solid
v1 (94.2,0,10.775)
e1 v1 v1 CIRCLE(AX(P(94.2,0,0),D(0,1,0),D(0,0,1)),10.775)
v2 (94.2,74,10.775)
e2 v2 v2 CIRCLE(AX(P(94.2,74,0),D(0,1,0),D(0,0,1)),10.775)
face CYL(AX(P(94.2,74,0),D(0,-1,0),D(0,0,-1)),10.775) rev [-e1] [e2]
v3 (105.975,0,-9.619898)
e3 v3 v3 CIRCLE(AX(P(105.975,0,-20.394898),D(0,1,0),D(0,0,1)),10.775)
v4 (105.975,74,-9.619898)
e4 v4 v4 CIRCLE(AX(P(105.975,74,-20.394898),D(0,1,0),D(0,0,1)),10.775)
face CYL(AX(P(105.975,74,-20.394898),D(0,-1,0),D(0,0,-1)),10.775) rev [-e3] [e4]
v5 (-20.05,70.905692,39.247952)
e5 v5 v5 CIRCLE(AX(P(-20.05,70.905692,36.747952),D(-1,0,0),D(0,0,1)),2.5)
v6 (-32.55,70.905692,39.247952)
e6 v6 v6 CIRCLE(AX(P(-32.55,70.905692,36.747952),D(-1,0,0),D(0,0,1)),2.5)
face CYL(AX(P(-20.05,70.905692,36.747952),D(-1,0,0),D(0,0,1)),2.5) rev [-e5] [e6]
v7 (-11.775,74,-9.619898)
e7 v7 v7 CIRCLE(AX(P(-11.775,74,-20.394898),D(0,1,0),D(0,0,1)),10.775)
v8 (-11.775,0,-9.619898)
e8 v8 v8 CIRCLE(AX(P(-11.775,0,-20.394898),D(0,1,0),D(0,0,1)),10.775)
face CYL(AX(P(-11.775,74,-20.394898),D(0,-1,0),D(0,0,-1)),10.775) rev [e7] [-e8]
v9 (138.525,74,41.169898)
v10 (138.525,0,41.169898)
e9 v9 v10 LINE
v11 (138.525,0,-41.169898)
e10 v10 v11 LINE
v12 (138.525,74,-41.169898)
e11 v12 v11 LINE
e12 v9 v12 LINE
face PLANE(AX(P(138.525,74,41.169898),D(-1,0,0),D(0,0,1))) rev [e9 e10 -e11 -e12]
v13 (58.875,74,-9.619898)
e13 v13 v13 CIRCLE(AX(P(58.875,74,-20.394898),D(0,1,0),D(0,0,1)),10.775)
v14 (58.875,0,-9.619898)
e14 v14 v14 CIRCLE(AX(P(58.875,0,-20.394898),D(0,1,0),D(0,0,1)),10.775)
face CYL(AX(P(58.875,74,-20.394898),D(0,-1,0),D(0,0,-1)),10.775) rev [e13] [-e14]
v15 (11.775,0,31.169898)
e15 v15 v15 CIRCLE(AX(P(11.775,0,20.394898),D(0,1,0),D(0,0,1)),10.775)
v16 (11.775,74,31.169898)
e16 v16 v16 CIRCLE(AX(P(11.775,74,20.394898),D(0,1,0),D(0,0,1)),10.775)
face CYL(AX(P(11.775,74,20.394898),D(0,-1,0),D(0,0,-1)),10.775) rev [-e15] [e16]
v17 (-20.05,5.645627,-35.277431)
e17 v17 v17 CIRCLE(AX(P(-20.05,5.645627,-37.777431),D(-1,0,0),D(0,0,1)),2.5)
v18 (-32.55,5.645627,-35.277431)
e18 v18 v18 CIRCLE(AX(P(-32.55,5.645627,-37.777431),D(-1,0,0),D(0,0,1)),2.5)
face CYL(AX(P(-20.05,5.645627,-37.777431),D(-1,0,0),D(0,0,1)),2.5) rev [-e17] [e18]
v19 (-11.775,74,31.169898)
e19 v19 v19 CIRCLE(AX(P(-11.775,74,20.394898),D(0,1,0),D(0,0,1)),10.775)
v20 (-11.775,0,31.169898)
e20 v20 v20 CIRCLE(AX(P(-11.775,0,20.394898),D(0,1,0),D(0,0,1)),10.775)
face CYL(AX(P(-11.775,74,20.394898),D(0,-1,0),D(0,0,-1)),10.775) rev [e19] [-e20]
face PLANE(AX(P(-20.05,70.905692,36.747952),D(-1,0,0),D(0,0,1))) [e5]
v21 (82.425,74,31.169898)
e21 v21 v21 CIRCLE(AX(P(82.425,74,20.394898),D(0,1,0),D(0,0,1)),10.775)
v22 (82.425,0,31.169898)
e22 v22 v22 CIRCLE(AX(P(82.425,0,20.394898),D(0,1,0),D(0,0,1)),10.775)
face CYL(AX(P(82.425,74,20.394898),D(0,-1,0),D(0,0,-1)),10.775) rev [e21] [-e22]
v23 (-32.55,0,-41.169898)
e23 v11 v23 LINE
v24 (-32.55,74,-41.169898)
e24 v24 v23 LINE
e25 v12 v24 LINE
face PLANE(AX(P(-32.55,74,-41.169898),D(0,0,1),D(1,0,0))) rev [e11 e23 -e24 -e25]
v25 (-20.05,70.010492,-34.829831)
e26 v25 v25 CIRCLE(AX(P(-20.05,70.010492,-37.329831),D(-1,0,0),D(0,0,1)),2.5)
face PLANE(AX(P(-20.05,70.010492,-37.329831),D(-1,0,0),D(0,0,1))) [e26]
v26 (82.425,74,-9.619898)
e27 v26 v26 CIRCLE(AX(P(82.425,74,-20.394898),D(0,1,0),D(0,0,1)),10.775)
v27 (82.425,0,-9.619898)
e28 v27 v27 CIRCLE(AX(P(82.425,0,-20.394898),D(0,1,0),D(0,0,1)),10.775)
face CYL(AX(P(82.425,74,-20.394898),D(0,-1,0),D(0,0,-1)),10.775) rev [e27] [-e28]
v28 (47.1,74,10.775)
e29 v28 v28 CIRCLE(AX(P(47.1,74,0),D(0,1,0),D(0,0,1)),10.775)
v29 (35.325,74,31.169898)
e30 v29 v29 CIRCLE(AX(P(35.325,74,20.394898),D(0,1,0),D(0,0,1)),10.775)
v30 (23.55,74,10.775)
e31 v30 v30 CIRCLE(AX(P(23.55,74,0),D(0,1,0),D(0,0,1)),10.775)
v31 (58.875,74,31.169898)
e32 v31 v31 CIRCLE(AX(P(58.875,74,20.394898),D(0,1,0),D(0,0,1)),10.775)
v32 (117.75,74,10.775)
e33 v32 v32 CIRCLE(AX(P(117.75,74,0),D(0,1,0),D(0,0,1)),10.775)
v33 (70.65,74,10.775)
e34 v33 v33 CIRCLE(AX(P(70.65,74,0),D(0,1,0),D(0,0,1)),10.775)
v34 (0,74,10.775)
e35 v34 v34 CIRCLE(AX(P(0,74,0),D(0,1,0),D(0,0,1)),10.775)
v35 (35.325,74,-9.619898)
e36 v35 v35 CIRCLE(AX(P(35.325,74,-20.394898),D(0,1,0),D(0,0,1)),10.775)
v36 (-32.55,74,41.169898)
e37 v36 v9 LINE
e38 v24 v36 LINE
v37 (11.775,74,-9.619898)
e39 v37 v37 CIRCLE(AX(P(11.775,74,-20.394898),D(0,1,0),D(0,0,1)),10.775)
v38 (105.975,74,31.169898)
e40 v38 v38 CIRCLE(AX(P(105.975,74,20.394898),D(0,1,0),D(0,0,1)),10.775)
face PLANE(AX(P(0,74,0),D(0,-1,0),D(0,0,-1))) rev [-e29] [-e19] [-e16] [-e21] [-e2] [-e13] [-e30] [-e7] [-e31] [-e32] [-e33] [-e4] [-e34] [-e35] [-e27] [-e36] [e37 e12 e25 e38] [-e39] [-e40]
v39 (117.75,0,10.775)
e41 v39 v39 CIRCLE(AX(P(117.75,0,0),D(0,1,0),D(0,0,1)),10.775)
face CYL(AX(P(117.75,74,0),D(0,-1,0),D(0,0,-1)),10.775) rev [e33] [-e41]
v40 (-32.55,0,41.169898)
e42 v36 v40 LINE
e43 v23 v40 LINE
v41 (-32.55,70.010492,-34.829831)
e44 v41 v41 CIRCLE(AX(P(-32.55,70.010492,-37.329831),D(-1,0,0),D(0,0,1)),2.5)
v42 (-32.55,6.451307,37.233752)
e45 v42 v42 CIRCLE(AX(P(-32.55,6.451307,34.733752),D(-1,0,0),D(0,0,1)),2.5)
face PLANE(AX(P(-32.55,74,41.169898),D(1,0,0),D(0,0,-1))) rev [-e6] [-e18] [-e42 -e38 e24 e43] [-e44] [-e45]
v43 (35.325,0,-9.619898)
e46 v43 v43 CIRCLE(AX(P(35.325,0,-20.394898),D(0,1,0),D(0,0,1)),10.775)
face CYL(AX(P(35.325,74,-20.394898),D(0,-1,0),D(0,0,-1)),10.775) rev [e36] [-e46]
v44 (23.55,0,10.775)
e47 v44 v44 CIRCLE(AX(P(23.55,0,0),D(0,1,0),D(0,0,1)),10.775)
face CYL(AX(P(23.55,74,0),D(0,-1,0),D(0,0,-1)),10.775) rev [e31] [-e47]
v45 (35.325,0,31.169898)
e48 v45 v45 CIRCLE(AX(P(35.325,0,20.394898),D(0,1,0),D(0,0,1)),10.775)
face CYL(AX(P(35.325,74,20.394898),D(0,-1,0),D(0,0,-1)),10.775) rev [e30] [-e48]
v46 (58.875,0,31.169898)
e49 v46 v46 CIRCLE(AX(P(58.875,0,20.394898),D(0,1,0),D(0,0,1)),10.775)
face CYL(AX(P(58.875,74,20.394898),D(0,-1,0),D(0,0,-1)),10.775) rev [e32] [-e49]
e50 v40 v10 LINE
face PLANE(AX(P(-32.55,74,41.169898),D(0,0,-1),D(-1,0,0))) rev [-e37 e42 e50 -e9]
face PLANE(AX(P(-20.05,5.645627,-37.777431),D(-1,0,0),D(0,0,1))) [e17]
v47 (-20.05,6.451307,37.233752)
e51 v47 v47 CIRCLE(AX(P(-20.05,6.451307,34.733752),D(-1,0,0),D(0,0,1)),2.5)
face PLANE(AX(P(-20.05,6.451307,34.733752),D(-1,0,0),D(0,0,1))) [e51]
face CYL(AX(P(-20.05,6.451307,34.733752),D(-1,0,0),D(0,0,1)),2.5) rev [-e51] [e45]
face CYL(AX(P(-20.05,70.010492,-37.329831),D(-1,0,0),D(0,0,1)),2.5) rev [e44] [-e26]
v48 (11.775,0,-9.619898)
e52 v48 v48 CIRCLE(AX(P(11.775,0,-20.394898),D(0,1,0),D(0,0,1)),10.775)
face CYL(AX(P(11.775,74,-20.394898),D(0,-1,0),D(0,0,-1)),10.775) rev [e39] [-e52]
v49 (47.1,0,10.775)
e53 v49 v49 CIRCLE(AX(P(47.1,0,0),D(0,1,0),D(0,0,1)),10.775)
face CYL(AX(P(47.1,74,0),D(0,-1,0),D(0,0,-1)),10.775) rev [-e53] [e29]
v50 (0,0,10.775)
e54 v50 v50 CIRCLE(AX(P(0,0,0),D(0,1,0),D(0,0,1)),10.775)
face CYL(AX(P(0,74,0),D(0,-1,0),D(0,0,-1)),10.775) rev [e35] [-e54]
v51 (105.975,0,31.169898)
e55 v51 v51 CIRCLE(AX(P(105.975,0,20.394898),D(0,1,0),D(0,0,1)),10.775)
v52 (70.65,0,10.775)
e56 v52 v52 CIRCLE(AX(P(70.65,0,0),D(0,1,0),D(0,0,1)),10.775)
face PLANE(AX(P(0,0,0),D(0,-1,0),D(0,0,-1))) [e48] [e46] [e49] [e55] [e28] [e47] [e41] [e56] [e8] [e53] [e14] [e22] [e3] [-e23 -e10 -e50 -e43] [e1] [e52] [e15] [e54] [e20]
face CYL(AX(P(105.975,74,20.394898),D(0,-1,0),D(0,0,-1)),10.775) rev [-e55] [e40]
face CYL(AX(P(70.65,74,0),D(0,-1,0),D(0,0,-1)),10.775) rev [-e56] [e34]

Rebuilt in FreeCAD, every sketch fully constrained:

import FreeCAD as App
import Part
import Sketcher
from FreeCAD import Vector

doc = App.newDocument("Part")
body = doc.addObject("PartDesign::Body", "Body")

sketch1 = body.newObject("Sketcher::SketchObject", "Sketch")
sketch1.AttachmentSupport = (doc.getObject("XZ_Plane"), [""])
sketch1.MapMode = "FlatFace"
sketch1.addGeometry(Part.LineSegment(Vector(-33, -41, 0), Vector(-33, 41, 0)), False)
sketch1.addGeometry(Part.LineSegment(Vector(-33, 41, 0), Vector(139, 41, 0)), False)
sketch1.addGeometry(Part.LineSegment(Vector(139, 41, 0), Vector(139, -41, 0)), False)
sketch1.addGeometry(Part.LineSegment(Vector(139, -41, 0), Vector(-33, -41, 0)), False)
sketch1.addGeometry(Part.Circle(Vector(-12, 20, 0), Vector(0, 0, 1), 11), False)
sketch1.addGeometry(Part.Circle(Vector(12, 20, 0), Vector(0, 0, 1), 11), False)
sketch1.addGeometry(Part.Circle(Vector(35, 20, 0), Vector(0, 0, 1), 11), False)
sketch1.addGeometry(Part.Circle(Vector(0, 0, 0), Vector(0, 0, 1), 11), False)
sketch1.addGeometry(Part.Circle(Vector(24, 0, 0), Vector(0, 0, 1), 11), False)
sketch1.addGeometry(Part.Circle(Vector(47, 0, 0), Vector(0, 0, 1), 11), False)
sketch1.addGeometry(Part.Circle(Vector(59, 20, 0), Vector(0, 0, 1), 11), False)
sketch1.addGeometry(Part.Circle(Vector(82, 20, 0), Vector(0, 0, 1), 11), False)
sketch1.addGeometry(Part.Circle(Vector(106, 20, 0), Vector(0, 0, 1), 11), False)
sketch1.addGeometry(Part.Circle(Vector(71, 0, 0), Vector(0, 0, 1), 11), False)
sketch1.addGeometry(Part.Circle(Vector(94, 0, 0), Vector(0, 0, 1), 11), False)
sketch1.addGeometry(Part.Circle(Vector(118, 0, 0), Vector(0, 0, 1), 11), False)
sketch1.addGeometry(Part.Circle(Vector(-12, -20, 0), Vector(0, 0, 1), 11), False)
sketch1.addGeometry(Part.Circle(Vector(12, -20, 0), Vector(0, 0, 1), 11), False)
sketch1.addGeometry(Part.Circle(Vector(35, -20, 0), Vector(0, 0, 1), 11), False)
sketch1.addGeometry(Part.Circle(Vector(59, -20, 0), Vector(0, 0, 1), 11), False)
sketch1.addGeometry(Part.Circle(Vector(82, -20, 0), Vector(0, 0, 1), 11), False)
sketch1.addGeometry(Part.Circle(Vector(106, -20, 0), Vector(0, 0, 1), 11), False)
sketch1.addConstraint(Sketcher.Constraint("Coincident", 0, 2, 1, 1))
sketch1.addConstraint(Sketcher.Constraint("Coincident", 1, 2, 2, 1))
sketch1.addConstraint(Sketcher.Constraint("Coincident", 2, 2, 3, 1))
sketch1.addConstraint(Sketcher.Constraint("Coincident", 3, 2, 0, 1))
sketch1.addConstraint(Sketcher.Constraint("Vertical", 0))
sketch1.addConstraint(Sketcher.Constraint("Horizontal", 1))
sketch1.addConstraint(Sketcher.Constraint("Vertical", 2))
sketch1.addConstraint(Sketcher.Constraint("Horizontal", 3))
sketch1.addConstraint(Sketcher.Constraint("Coincident", 7, 3, -1, 1))
sketch1.addConstraint(Sketcher.Constraint("Equal", 4, 5))
sketch1.addConstraint(Sketcher.Constraint("Equal", 5, 6))
sketch1.addConstraint(Sketcher.Constraint("Equal", 6, 7))
sketch1.addConstraint(Sketcher.Constraint("Equal", 7, 8))
sketch1.addConstraint(Sketcher.Constraint("Equal", 8, 9))
sketch1.addConstraint(Sketcher.Constraint("Equal", 9, 10))
sketch1.addConstraint(Sketcher.Constraint("Equal", 10, 11))
sketch1.addConstraint(Sketcher.Constraint("Equal", 11, 12))
sketch1.addConstraint(Sketcher.Constraint("Equal", 12, 13))
sketch1.addConstraint(Sketcher.Constraint("Equal", 13, 14))
sketch1.addConstraint(Sketcher.Constraint("Equal", 14, 15))
sketch1.addConstraint(Sketcher.Constraint("Equal", 15, 16))
sketch1.addConstraint(Sketcher.Constraint("Equal", 16, 17))
sketch1.addConstraint(Sketcher.Constraint("Equal", 17, 18))
sketch1.addConstraint(Sketcher.Constraint("Equal", 18, 19))
sketch1.addConstraint(Sketcher.Constraint("Equal", 19, 20))
sketch1.addConstraint(Sketcher.Constraint("Equal", 20, 21))
sketch1.addConstraint(Sketcher.Constraint("Symmetric", 5, 3, 16, 3, -1, 1))
sketch1.addConstraint(Sketcher.Constraint("Symmetric", 4, 3, 17, 3, -1, 1))
sketch1.addConstraint(Sketcher.Constraint("Symmetric", 4, 3, 5, 3, -2))
sketch1.addConstraint(Sketcher.Constraint("Symmetric", 6, 3, 18, 3, -1))
sketch1.addConstraint(Sketcher.Constraint("Symmetric", 10, 3, 19, 3, -1))
sketch1.addConstraint(Sketcher.Constraint("Symmetric", 11, 3, 20, 3, -1))
sketch1.addConstraint(Sketcher.Constraint("Symmetric", 12, 3, 21, 3, -1))
sketch1.addConstraint(Sketcher.Constraint("PointOnObject", 8, 3, -1))
sketch1.addConstraint(Sketcher.Constraint("PointOnObject", 9, 3, -1))
sketch1.addConstraint(Sketcher.Constraint("PointOnObject", 13, 3, -1))
sketch1.addConstraint(Sketcher.Constraint("PointOnObject", 14, 3, -1))
sketch1.addConstraint(Sketcher.Constraint("PointOnObject", 15, 3, -1))
sketch1.addConstraint(Sketcher.Constraint("Horizontal", 5, 3, 6, 3))
sketch1.addConstraint(Sketcher.Constraint("Horizontal", 6, 3, 10, 3))
sketch1.addConstraint(Sketcher.Constraint("Horizontal", 10, 3, 11, 3))
sketch1.addConstraint(Sketcher.Constraint("Horizontal", 11, 3, 12, 3))
sketch1.addConstraint(Sketcher.Constraint("Diameter", 4, 21.55))
sketch1.addConstraint(Sketcher.Constraint("DistanceX", -1, 1, 9, 3, 47.1))
sketch1.addConstraint(Sketcher.Constraint("DistanceX", -1, 1, 14, 3, 94.2))
sketch1.addConstraint(Sketcher.Constraint("DistanceX", 4, 3, 6, 3, 47.1))
sketch1.addConstraint(Sketcher.Constraint("DistanceX", 5, 3, 10, 3, 47.1))
sketch1.addConstraint(Sketcher.Constraint("DistanceX", 6, 3, 11, 3, 47.1))
sketch1.addConstraint(Sketcher.Constraint("DistanceX", 10, 3, 12, 3, 47.1))
sketch1.addConstraint(Sketcher.Constraint("DistanceX", 13, 3, 15, 3, 47.1))
sketch1.addConstraint(Sketcher.Constraint("DistanceX", 0, 2, 8, 3, 56.1))
sketch1.addConstraint(Sketcher.Constraint("DistanceX", 11, 3, 1, 2, 56.1))
sketch1.addConstraint(Sketcher.Constraint("DistanceX", 1, 1, 1, 2, 171.075))
sketch1.addConstraint(Sketcher.Constraint("DistanceX", -1, 1, 8, 3, 23.55))
sketch1.addConstraint(Sketcher.Constraint("DistanceX", -1, 1, 13, 3, 70.65))
sketch1.addConstraint(Sketcher.Constraint("DistanceY", 4, 3, 0, 2, 20.775))
sketch1.addConstraint(Sketcher.Constraint("DistanceY", 2, 2, 21, 3, 20.775))
sketch1.addConstraint(Sketcher.Constraint("DistanceY", -1, 1, 4, 3, 20.394898))
pad1 = body.newObject("PartDesign::Pad", "Pad")
pad1.Profile = sketch1
pad1.Length = 74
pad1.Reversed = True

sketch2 = body.newObject("Sketcher::SketchObject", "Sketch001")
sketch2.AttachmentSupport = (doc.getObject("YZ_Plane"), [""])
sketch2.MapMode = "FlatFace"
sketch2.AttachmentOffset = App.Placement(Vector(0, 0, -32.55), App.Rotation())
sketch2.addGeometry(Part.Circle(Vector(70, -37.3, 0), Vector(0, 0, 1), 2.5), False)
sketch2.addGeometry(Part.Circle(Vector(70.9, 36.7, 0), Vector(0, 0, 1), 2.5), False)
sketch2.addGeometry(Part.Circle(Vector(6.5, 34.7, 0), Vector(0, 0, 1), 2.5), False)
sketch2.addGeometry(Part.Circle(Vector(5.6, -37.8, 0), Vector(0, 0, 1), 2.5), False)
sketch2.addConstraint(Sketcher.Constraint("Equal", 0, 1))
sketch2.addConstraint(Sketcher.Constraint("Equal", 1, 2))
sketch2.addConstraint(Sketcher.Constraint("Equal", 2, 3))
sketch2.addConstraint(Sketcher.Constraint("Diameter", 0, 5.0))
sketch2.addConstraint(Sketcher.Constraint("DistanceX", 0, 3, 1, 3, 0.8952))
sketch2.addConstraint(Sketcher.Constraint("DistanceY", 2, 3, 1, 3, 2.0142))
sketch2.addConstraint(Sketcher.Constraint("DistanceY", 3, 3, 0, 3, 0.4476))
sketch2.addConstraint(Sketcher.Constraint("DistanceY", 0, 3, -1, 1, 37.329831))
sketch2.addConstraint(Sketcher.Constraint("DistanceY", -1, 1, 1, 3, 36.747952))
sketch2.addConstraint(Sketcher.Constraint("DistanceX", 3, 3, 2, 3, 0.80568))
sketch2.addConstraint(Sketcher.Constraint("DistanceX", -1, 1, 0, 3, 70.010492))
sketch2.addConstraint(Sketcher.Constraint("DistanceX", -1, 1, 2, 3, 6.451307))
pocket1 = body.newObject("PartDesign::Pocket", "Pocket")
pocket1.Profile = sketch2
pocket1.Length = 12.5
pocket1.Reversed = True

doc.recompute()
